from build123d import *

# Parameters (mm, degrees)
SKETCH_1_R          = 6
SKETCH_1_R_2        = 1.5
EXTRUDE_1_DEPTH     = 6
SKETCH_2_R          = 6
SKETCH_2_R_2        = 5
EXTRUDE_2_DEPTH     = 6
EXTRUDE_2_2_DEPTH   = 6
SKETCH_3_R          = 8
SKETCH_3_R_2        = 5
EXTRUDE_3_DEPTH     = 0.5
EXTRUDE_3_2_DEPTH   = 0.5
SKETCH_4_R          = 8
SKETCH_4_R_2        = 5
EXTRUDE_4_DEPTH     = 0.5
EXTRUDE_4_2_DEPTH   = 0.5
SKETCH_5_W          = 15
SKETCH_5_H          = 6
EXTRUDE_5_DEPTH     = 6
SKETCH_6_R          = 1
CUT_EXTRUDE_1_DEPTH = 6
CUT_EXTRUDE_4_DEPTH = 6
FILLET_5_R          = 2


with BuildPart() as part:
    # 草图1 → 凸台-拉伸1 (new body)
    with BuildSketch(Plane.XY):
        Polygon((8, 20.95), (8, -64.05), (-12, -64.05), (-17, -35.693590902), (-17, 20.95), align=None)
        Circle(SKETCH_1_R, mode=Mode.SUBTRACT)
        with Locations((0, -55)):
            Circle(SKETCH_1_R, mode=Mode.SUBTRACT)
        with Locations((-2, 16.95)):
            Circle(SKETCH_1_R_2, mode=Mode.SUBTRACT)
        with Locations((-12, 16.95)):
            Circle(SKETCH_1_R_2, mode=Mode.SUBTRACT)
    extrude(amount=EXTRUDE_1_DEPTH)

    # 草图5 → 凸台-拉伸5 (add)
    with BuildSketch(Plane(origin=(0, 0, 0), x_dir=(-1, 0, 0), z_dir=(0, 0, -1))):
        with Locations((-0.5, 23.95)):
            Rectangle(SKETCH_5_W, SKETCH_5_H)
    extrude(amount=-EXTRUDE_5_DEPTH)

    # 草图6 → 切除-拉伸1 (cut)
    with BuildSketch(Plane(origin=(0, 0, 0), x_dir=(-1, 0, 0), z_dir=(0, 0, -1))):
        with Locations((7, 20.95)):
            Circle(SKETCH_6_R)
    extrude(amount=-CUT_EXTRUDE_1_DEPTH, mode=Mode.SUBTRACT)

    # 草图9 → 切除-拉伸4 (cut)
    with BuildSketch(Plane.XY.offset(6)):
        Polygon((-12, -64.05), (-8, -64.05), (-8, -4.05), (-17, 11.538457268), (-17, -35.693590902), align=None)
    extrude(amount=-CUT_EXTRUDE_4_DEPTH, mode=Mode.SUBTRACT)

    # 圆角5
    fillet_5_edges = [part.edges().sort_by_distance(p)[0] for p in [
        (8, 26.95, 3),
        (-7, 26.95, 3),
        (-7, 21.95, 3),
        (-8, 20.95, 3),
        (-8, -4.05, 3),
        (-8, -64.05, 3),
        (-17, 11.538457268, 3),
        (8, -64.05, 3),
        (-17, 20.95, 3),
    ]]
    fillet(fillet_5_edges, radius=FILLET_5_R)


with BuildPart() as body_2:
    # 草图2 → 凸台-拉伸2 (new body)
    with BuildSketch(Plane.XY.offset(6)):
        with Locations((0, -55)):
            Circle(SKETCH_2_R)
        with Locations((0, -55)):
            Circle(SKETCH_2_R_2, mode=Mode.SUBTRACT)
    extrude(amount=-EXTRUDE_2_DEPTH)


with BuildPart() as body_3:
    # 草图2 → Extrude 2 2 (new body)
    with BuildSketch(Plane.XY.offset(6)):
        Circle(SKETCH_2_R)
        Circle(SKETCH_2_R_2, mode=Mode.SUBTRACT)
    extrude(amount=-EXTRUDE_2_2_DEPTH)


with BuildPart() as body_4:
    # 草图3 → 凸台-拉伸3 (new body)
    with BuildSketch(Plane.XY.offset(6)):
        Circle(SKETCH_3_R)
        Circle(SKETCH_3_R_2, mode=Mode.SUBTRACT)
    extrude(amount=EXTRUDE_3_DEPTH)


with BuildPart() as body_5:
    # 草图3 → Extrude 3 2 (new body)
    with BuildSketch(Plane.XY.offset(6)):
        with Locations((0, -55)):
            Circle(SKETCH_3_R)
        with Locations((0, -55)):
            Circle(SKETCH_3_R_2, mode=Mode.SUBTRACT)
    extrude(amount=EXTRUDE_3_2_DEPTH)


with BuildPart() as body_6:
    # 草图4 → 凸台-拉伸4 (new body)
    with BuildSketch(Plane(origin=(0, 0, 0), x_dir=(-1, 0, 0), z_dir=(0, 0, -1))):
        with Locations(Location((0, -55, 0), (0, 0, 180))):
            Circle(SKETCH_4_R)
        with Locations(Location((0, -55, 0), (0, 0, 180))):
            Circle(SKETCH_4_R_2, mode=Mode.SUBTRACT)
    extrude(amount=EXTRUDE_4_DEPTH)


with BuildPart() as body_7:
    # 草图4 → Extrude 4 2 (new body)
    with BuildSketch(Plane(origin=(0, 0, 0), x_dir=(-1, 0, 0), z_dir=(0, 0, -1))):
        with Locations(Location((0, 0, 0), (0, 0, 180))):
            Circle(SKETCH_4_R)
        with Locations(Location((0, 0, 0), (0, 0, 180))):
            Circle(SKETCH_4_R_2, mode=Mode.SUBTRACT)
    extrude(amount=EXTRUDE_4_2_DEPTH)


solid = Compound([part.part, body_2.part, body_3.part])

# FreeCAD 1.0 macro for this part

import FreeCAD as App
import Part
import Sketcher
from FreeCAD import Vector
Q = App.Units.Quantity


def edges_at(feature, points):
    """Names of the edges that pass closest to the given points."""
    edges = feature.Shape.Edges
    near = lambda p: min(range(len(edges)), key=lambda i: edges[i].distToShape(Part.Vertex(*p))[0])
    return sorted({f"Edge{near(p) + 1}" for p in points})


def add_polygon(sketch, points):
    """Adds a closed chain of lines whose ends are joined by coincident constraints."""
    first, n = sketch.GeometryCount, len(points)
    for a, b in zip(points, points[1:] + points[:1]):
        sketch.addGeometry(Part.LineSegment(App.Vector(*a, 0), App.Vector(*b, 0)), False)
    for i in range(n):
        sketch.addConstraint(Sketcher.Constraint("Coincident", first + i, 2, first + (i + 1) % n, 1))

doc = App.newDocument("Part")
body = doc.addObject("PartDesign::Body", "Body")

# Sketch on XY plane
sketch1 = doc.addObject("Sketcher::SketchObject", "Sketch")
body.addObject(sketch1)
sketch1.AttachmentSupport = (doc.XY_Plane, [""])
sketch1.MapMode = "FlatFace"
add_polygon(sketch1, [(8, -64.05), (8, 20.95), (-17, 20.95), (-17, -35.693591), (-12, -64.05)])  # lines 0-4
sketch1.addGeometry(Part.Circle(Vector(0, -55, 0), Vector(0, 0, 1), 6), False)  # 5
sketch1.addGeometry(Part.Circle(Vector(0, 0, 0), Vector(0, 0, 1), 6), False)  # 6
sketch1.addGeometry(Part.Circle(Vector(-2, 16.95, 0), Vector(0, 0, 1), 1.5), False)  # 7
sketch1.addGeometry(Part.Circle(Vector(-12, 16.95, 0), Vector(0, 0, 1), 1.5), False)  # 8
sketch1.addConstraint([
    Sketcher.Constraint("Vertical", 0),
    Sketcher.Constraint("Horizontal", 1),
    Sketcher.Constraint("Vertical", 2),
    Sketcher.Constraint("Horizontal", 4),
    Sketcher.Constraint("Coincident", 6, 3, -1, 1),
    Sketcher.Constraint("Equal", 5, 6),
    Sketcher.Constraint("Equal", 7, 8),
    Sketcher.Constraint("PointOnObject", 5, 3, -2),
    Sketcher.Constraint("Horizontal", 7, 3, 8, 3),
    Sketcher.Constraint("Vertical", 8, 3, 3, 2),
    Sketcher.Constraint("Diameter", 5, Q("12 mm")),
    Sketcher.Constraint("Diameter", 7, Q("3 mm")),
    Sketcher.Constraint("DistanceX", 1, 2, 1, 1, Q("25 mm")),
    Sketcher.Constraint("DistanceX", 4, 1, 4, 2, Q("20 mm")),
    Sketcher.Constraint("DistanceY", 0, 1, 0, 2, Q("85 mm")),
    Sketcher.Constraint("Angle", 3, Q("-80 deg")),
    Sketcher.Constraint("DistanceY", 5, 3, -1, 1, Q("55 mm")),
    Sketcher.Constraint("DistanceX", 7, 3, -1, 1, Q("2 mm")),
    Sketcher.Constraint("DistanceX", 8, 3, -1, 1, Q("12 mm")),
    Sketcher.Constraint("DistanceY", 7, 3, 0, 2, Q("4 mm")),
    Sketcher.Constraint("DistanceY", -1, 1, 7, 3, Q("16.95 mm")),
])
pad1 = doc.addObject("PartDesign::Pad", "Pad")
body.addObject(pad1)
pad1.Profile = sketch1
pad1.Length = 6

# Sketch on XY plane
sketch2 = doc.addObject("Sketcher::SketchObject", "Sketch001")
body.addObject(sketch2)
sketch2.AttachmentSupport = (doc.XY_Plane, [""])
sketch2.MapMode = "FlatFace"
add_polygon(sketch2, [(8, 26.95), (8, 20.95), (-7, 20.95), (-7, 26.95)])  # lines 0-3
sketch2.addConstraint([
    Sketcher.Constraint("Vertical", 0),
    Sketcher.Constraint("Horizontal", 1),
    Sketcher.Constraint("Vertical", 2),
    Sketcher.Constraint("Horizontal", 3),
    Sketcher.Constraint("DistanceX", 1, 2, 1, 1, Q("15 mm")),
    Sketcher.Constraint("DistanceY", 0, 2, 0, 1, Q("6 mm")),
    Sketcher.Constraint("DistanceX", -1, 1, 0, 2, Q("8 mm")),
    Sketcher.Constraint("DistanceY", -1, 1, 0, 2, Q("20.95 mm")),
])
pad2 = doc.addObject("PartDesign::Pad", "Pad001")
body.addObject(pad2)
pad2.Profile = sketch2
pad2.Length = 6

# Sketch on XY plane
sketch3 = doc.addObject("Sketcher::SketchObject", "Sketch002")
body.addObject(sketch3)
sketch3.AttachmentSupport = (doc.XY_Plane, [""])
sketch3.MapMode = "FlatFace"
sketch3.addGeometry(Part.Circle(Vector(-7, 20.95, 0), Vector(0, 0, 1), 1), False)
sketch3.addConstraint([
    Sketcher.Constraint("Diameter", 0, Q("2 mm")),
    Sketcher.Constraint("DistanceX", 0, 3, -1, 1, Q("7 mm")),
    Sketcher.Constraint("DistanceY", -1, 1, 0, 3, Q("20.95 mm")),
])
pocket1 = doc.addObject("PartDesign::Pocket", "Pocket")
body.addObject(pocket1)
pocket1.Profile = sketch3
pocket1.Length = 6
pocket1.Reversed = True

# Sketch on XY plane
sketch4 = doc.addObject("Sketcher::SketchObject", "Sketch003")
body.addObject(sketch4)
sketch4.AttachmentSupport = (doc.XY_Plane, [""])
sketch4.MapMode = "FlatFace"
sketch4.AttachmentOffset = App.Placement(Vector(0, 0, 6), App.Rotation())
add_polygon(sketch4, [(-12, -64.05), (-8, -64.05), (-8, -4.05), (-17, 11.538457), (-17, -35.693591)])  # lines 0-4
sketch4.addConstraint([
    Sketcher.Constraint("Horizontal", 0),
    Sketcher.Constraint("Vertical", 1),
    Sketcher.Constraint("Vertical", 3),
    Sketcher.Constraint("DistanceX", 0, 1, 0, 2, Q("4 mm")),
    Sketcher.Constraint("DistanceY", 1, 1, 1, 2, Q("60 mm")),
    Sketcher.Constraint("Angle", 2, Q("120 deg")),
    Sketcher.Constraint("Angle", 4, Q("-80 deg")),
    Sketcher.Constraint("Distance", 2, Q("18 mm")),
    Sketcher.Constraint("DistanceX", 0, 2, -1, 1, Q("8 mm")),
    Sketcher.Constraint("DistanceY", 0, 2, -1, 1, Q("64.05 mm")),
])
pocket2 = doc.addObject("PartDesign::Pocket", "Pocket001")
body.addObject(pocket2)
pocket2.Profile = sketch4
pocket2.Length = 6
doc.recompute()

fillet = doc.addObject("PartDesign::Fillet", "Fillet")
body.addObject(fillet)
fillet.Base = (pocket2, edges_at(pocket2, [
    (8, 26.95, 3),
    (-7, 26.95, 3),
    (-7, 21.95, 3),
    (-8, 20.95, 3),
    (-8, -4.05, 3),
    (-8, -64.05, 3),
    (-17, 11.538, 3),
    (8, -64.05, 3),
    (-17, 20.95, 3),
]))
fillet.Radius = 2
body2 = doc.addObject("PartDesign::Body", "Body001")

# Sketch on XY plane
sketch5 = doc.addObject("Sketcher::SketchObject", "Sketch004")
body2.addObject(sketch5)
sketch5.AttachmentSupport = (doc.getObject("XY_Plane001"), [""])
sketch5.MapMode = "FlatFace"
sketch5.AttachmentOffset = App.Placement(Vector(0, 0, 6), App.Rotation())
sketch5.addGeometry([
    Part.Circle(Vector(0, -55, 0), Vector(0, 0, 1), 6),
    Part.Circle(Vector(0, -55, 0), Vector(0, 0, 1), 5),
], False)
sketch5.addConstraint([
    Sketcher.Constraint("Coincident", 1, 3, 0, 3),
    Sketcher.Constraint("PointOnObject", 0, 3, -2),
    Sketcher.Constraint("Diameter", 0, Q("12 mm")),
    Sketcher.Constraint("Diameter", 1, Q("10 mm")),
    Sketcher.Constraint("DistanceY", 0, 3, -1, 1, Q("55 mm")),
])
pad3 = doc.addObject("PartDesign::Pad", "Pad002")
body2.addObject(pad3)
pad3.Profile = sketch5
pad3.Length = 6
pad3.Reversed = True
body3 = doc.addObject("PartDesign::Body", "Body002")

# Sketch on XY plane
sketch6 = doc.addObject("Sketcher::SketchObject", "Sketch005")
body3.addObject(sketch6)
sketch6.AttachmentSupport = (doc.getObject("XY_Plane002"), [""])
sketch6.MapMode = "FlatFace"
sketch6.AttachmentOffset = App.Placement(Vector(0, 0, 6), App.Rotation())
sketch6.addGeometry([
    Part.Circle(Vector(0, 0, 0), Vector(0, 0, 1), 6),
    Part.Circle(Vector(0, 0, 0), Vector(0, 0, 1), 5),
], False)
sketch6.addConstraint([
    Sketcher.Constraint("Coincident", 0, 3, -1, 1),
    Sketcher.Constraint("Coincident", 1, 3, -1, 1),
    Sketcher.Constraint("Diameter", 0, Q("12 mm")),
    Sketcher.Constraint("Diameter", 1, Q("10 mm")),
])
pad4 = doc.addObject("PartDesign::Pad", "Pad003")
body3.addObject(pad4)
pad4.Profile = sketch6
pad4.Length = 6
pad4.Reversed = True
body4 = doc.addObject("PartDesign::Body", "Body003")

# Sketch on XY plane
sketch7 = doc.addObject("Sketcher::SketchObject", "Sketch006")
body4.addObject(sketch7)
sketch7.AttachmentSupport = (doc.getObject("XY_Plane003"), [""])
sketch7.MapMode = "FlatFace"
sketch7.AttachmentOffset = App.Placement(Vector(0, 0, 6), App.Rotation())
sketch7.addGeometry([
    Part.Circle(Vector(0, 0, 0), Vector(0, 0, 1), 8),
    Part.Circle(Vector(0, 0, 0), Vector(0, 0, 1), 5),
], False)
sketch7.addConstraint([
    Sketcher.Constraint("Coincident", 0, 3, -1, 1),
    Sketcher.Constraint("Coincident", 1, 3, -1, 1),
    Sketcher.Constraint("Diameter", 0, Q("16 mm")),
    Sketcher.Constraint("Diameter", 1, Q("10 mm")),
])
pad5 = doc.addObject("PartDesign::Pad", "Pad004")
body4.addObject(pad5)
pad5.Profile = sketch7
pad5.Length = 0.5
body5 = doc.addObject("PartDesign::Body", "Body004")

# Sketch on XY plane
sketch8 = doc.addObject("Sketcher::SketchObject", "Sketch007")
body5.addObject(sketch8)
sketch8.AttachmentSupport = (doc.getObject("XY_Plane004"), [""])
sketch8.MapMode = "FlatFace"
sketch8.AttachmentOffset = App.Placement(Vector(0, 0, 6), App.Rotation())
sketch8.addGeometry([
    Part.Circle(Vector(0, -55, 0), Vector(0, 0, 1), 8),
    Part.Circle(Vector(0, -55, 0), Vector(0, 0, 1), 5),
], False)
sketch8.addConstraint([
    Sketcher.Constraint("Coincident", 1, 3, 0, 3),
    Sketcher.Constraint("PointOnObject", 0, 3, -2),
    Sketcher.Constraint("Diameter", 0, Q("16 mm")),
    Sketcher.Constraint("Diameter", 1, Q("10 mm")),
    Sketcher.Constraint("DistanceY", 0, 3, -1, 1, Q("55 mm")),
])
pad6 = doc.addObject("PartDesign::Pad", "Pad005")
body5.addObject(pad6)
pad6.Profile = sketch8
pad6.Length = 0.5
body6 = doc.addObject("PartDesign::Body", "Body005")

# Sketch on XY plane
sketch9 = doc.addObject("Sketcher::SketchObject", "Sketch008")
body6.addObject(sketch9)
sketch9.AttachmentSupport = (doc.getObject("XY_Plane005"), [""])
sketch9.MapMode = "FlatFace"
sketch9.addGeometry([
    Part.Circle(Vector(0, -55, 0), Vector(0, 0, 1), 8),
    Part.Circle(Vector(0, -55, 0), Vector(0, 0, 1), 5),
], False)
sketch9.addConstraint([
    Sketcher.Constraint("Coincident", 1, 3, 0, 3),
    Sketcher.Constraint("PointOnObject", 0, 3, -2),
    Sketcher.Constraint("Diameter", 0, Q("16 mm")),
    Sketcher.Constraint("Diameter", 1, Q("10 mm")),
    Sketcher.Constraint("DistanceY", 0, 3, -1, 1, Q("55 mm")),
])
pad7 = doc.addObject("PartDesign::Pad", "Pad006")
body6.addObject(pad7)
pad7.Profile = sketch9
pad7.Length = 0.5
pad7.Reversed = True
body7 = doc.addObject("PartDesign::Body", "Body006")

# Sketch on XY plane
sketch10 = doc.addObject("Sketcher::SketchObject", "Sketch009")
body7.addObject(sketch10)
sketch10.AttachmentSupport = (doc.getObject("XY_Plane006"), [""])
sketch10.MapMode = "FlatFace"
sketch10.addGeometry([
    Part.Circle(Vector(0, 0, 0), Vector(0, 0, 1), 8),
    Part.Circle(Vector(0, 0, 0), Vector(0, 0, 1), 5),
], False)
sketch10.addConstraint([
    Sketcher.Constraint("Coincident", 0, 3, -1, 1),
    Sketcher.Constraint("Coincident", 1, 3, -1, 1),
    Sketcher.Constraint("Diameter", 0, Q("16 mm")),
    Sketcher.Constraint("Diameter", 1, Q("10 mm")),
])
pad8 = doc.addObject("PartDesign::Pad", "Pad007")
body7.addObject(pad8)
pad8.Profile = sketch10
pad8.Length = 0.5
pad8.Reversed = True
body4.Visibility = False
body5.Visibility = False
body6.Visibility = False
body7.Visibility = False

doc.recompute()
